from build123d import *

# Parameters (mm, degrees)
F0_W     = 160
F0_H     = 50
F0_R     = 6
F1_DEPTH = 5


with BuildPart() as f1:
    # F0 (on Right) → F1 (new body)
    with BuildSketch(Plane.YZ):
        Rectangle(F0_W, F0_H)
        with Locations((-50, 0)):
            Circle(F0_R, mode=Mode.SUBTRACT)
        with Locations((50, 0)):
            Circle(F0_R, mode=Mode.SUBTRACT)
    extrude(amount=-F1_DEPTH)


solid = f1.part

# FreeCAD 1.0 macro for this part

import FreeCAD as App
import Part
import Sketcher

doc = App.newDocument("Part")
body = doc.addObject("PartDesign::Body", "Body")

sketch1 = body.newObject("Sketcher::SketchObject", "Sketch")
sketch1.AttachmentSupport = (doc.getObject("YZ_Plane"), [""])
sketch1.MapMode = "FlatFace"
sketch1.addGeometry([
    Part.LineSegment(App.Vector(-80, 25, 0), App.Vector(-80, -25, 0)),
    Part.LineSegment(App.Vector(-80, -25, 0), App.Vector(80, -25, 0)),
    Part.LineSegment(App.Vector(80, -25, 0), App.Vector(80, 25, 0)),
    Part.LineSegment(App.Vector(80, 25, 0), App.Vector(-80, 25, 0)),
    Part.Circle(App.Vector(-50, 0, 0), App.Vector(0, 0, 1), 6),
    Part.Circle(App.Vector(50, 0, 0), App.Vector(0, 0, 1), 6),
], False)
sketch1.addConstraint([
    Sketcher.Constraint("Coincident", 0, 2, 1, 1),
    Sketcher.Constraint("Coincident", 1, 2, 2, 1),
    Sketcher.Constraint("Coincident", 2, 2, 3, 1),
    Sketcher.Constraint("Coincident", 3, 2, 0, 1),
    Sketcher.Constraint("Vertical", 0),
    Sketcher.Constraint("Horizontal", 1),
    Sketcher.Constraint("Vertical", 2),
    Sketcher.Constraint("Horizontal", 3),
    Sketcher.Constraint("Equal", 4, 5),
    Sketcher.Constraint("Symmetric", 4, 3, 5, 3, -1, 1),
    Sketcher.Constraint("Symmetric", 0, 2, 2, 2, -1, 1),
    Sketcher.Constraint("PointOnObject", 4, 3, -1),
    Sketcher.Constraint("Diameter", 4, 12.0),
    Sketcher.Constraint("DistanceX", 1, 1, 1, 2, 160.0),
    Sketcher.Constraint("DistanceY", 0, 2, 0, 1, 50.0),
    Sketcher.Constraint("DistanceX", 4, 3, -1, 1, 50.0),
])
pad1 = body.newObject("PartDesign::Pad", "Pad")
pad1.Profile = sketch1
pad1.Length = 5
pad1.Reversed = True

doc.recompute()
